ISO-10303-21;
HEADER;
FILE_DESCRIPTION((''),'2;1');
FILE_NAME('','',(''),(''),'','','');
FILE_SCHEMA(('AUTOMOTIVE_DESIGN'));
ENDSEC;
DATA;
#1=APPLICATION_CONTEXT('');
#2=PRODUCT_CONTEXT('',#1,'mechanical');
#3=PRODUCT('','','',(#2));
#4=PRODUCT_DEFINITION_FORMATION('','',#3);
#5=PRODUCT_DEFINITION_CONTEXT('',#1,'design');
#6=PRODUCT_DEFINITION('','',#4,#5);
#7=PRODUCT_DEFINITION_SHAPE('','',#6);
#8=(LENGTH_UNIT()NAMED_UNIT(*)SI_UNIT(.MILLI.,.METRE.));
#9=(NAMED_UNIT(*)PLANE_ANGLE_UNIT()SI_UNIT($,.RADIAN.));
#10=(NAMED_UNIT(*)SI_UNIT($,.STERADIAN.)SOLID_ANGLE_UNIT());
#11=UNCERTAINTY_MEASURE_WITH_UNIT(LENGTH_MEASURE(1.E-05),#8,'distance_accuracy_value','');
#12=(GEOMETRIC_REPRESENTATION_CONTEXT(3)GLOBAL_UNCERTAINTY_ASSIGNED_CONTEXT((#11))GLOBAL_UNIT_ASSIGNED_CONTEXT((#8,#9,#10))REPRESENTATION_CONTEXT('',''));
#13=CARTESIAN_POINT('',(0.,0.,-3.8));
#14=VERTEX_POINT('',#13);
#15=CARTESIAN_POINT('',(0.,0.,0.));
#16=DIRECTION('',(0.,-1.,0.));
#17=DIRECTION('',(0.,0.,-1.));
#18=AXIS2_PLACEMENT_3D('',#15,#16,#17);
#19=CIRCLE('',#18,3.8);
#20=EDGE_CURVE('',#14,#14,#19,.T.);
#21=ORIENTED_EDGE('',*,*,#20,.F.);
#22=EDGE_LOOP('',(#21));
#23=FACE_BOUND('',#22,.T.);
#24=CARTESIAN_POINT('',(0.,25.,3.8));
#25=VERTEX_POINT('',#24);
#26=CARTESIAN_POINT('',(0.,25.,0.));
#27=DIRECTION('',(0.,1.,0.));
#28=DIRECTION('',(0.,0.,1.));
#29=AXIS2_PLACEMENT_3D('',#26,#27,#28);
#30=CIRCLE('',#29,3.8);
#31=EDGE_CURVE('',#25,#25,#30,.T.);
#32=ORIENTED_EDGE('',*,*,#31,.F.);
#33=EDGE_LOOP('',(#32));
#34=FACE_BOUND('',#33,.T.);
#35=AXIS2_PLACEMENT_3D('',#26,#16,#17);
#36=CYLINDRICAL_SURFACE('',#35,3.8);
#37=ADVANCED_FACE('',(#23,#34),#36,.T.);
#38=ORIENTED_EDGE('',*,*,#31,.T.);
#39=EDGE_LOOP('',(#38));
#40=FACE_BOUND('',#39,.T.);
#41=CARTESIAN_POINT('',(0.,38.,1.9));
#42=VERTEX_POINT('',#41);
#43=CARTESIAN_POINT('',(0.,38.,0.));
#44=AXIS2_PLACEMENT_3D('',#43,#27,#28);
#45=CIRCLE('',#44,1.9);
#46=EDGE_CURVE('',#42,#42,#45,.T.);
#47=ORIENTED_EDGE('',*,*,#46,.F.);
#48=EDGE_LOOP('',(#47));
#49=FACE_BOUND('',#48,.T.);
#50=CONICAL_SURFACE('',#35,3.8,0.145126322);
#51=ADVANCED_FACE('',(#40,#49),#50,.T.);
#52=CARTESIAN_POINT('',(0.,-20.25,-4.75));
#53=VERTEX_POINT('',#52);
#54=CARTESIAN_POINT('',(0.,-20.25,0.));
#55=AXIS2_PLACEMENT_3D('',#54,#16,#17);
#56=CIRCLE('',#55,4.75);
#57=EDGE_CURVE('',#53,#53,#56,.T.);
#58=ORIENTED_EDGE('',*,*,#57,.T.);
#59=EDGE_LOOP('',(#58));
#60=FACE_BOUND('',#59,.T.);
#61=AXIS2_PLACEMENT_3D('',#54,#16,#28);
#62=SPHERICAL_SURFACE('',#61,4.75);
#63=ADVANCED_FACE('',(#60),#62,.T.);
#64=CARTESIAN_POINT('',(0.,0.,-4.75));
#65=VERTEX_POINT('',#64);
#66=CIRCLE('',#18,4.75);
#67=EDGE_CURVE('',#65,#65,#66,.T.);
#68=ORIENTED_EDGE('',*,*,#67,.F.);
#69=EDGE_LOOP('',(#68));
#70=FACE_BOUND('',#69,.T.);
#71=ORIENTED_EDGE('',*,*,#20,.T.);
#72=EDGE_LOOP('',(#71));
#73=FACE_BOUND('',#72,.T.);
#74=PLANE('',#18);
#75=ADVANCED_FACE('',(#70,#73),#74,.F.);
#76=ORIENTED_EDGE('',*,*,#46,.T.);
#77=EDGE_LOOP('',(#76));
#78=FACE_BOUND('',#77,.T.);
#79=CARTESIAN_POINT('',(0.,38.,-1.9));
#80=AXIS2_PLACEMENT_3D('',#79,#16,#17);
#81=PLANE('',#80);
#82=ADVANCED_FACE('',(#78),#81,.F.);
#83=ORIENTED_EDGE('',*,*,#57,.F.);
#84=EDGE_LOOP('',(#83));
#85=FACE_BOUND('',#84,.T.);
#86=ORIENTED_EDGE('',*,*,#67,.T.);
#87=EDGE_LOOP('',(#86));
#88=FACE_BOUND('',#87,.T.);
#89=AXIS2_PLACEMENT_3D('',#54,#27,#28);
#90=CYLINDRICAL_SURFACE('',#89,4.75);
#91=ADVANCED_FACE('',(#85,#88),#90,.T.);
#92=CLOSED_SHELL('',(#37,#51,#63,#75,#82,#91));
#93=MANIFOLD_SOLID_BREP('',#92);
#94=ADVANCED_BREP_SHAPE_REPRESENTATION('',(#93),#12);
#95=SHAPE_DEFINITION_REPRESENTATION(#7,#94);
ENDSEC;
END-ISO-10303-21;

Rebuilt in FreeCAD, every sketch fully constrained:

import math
import FreeCAD as App
import Part
import Sketcher
from FreeCAD import Vector
Q = App.Units.Quantity


def add_polygon(sketch, points):
    """Adds a closed chain of lines whose ends are joined by coincident constraints."""
    first, n = sketch.GeometryCount, len(points)
    for a, b in zip(points, points[1:] + points[:1]):
        sketch.addGeometry(Part.LineSegment(App.Vector(*a, 0), App.Vector(*b, 0)), False)
    for i in range(n):
        sketch.addConstraint(Sketcher.Constraint("Coincident", first + i, 2, first + (i + 1) % n, 1))

doc = App.newDocument("Part")
body = doc.addObject("PartDesign::Body", "Body")

# Sketch on XZ plane
sketch1 = body.newObject("Sketcher::SketchObject", "Sketch")
sketch1.AttachmentSupport = (doc.getObject("XZ_Plane"), [""])
sketch1.MapMode = "FlatFace"
sketch1.addGeometry(Part.Circle(Vector(0, 0, 0), Vector(0, 0, 1), 3.8), False)
sketch1.addConstraint(Sketcher.Constraint("Coincident", 0, 3, -1, 1))
sketch1.addConstraint(Sketcher.Constraint("Diameter", 0, Q("7.6 mm")))
pad1 = body.newObject("PartDesign::Pad", "Pad")
pad1.Profile = sketch1
pad1.Length = 25
pad1.Reversed = True

# Sketch on XZ plane
sketch2 = body.newObject("Sketcher::SketchObject", "Sketch001")
sketch2.AttachmentSupport = (doc.getObject("XZ_Plane"), [""])
sketch2.MapMode = "FlatFace"
sketch2.addGeometry(Part.Circle(Vector(0, 0, 0), Vector(0, 0, 1), 4.8), False)
sketch2.addConstraint(Sketcher.Constraint("Coincident", 0, 3, -1, 1))
sketch2.addConstraint(Sketcher.Constraint("Diameter", 0, Q("9.5 mm")))
pad2 = body.newObject("PartDesign::Pad", "Pad001")
pad2.Profile = sketch2
pad2.Length = 20.25

# Sketch on YZ plane
sketch3 = body.newObject("Sketcher::SketchObject", "Sketch002")
sketch3.AttachmentSupport = (doc.getObject("YZ_Plane"), [""])
sketch3.MapMode = "FlatFace"
sketch3.addGeometry(Part.LineSegment(Vector(-25, 0, 0), Vector(-20.2, 0, 0)), False)
sketch3.addGeometry(Part.LineSegment(Vector(-20.2, 0, 0), Vector(-20.2, 4.8, 0)), False)
sketch3.addGeometry(Part.ArcOfCircle(Part.Circle(Vector(-20.3, 0, 0), Vector(0, 0, 1), 4.7), math.radians(90), math.radians(180)), False)
sketch3.addConstraint(Sketcher.Constraint("Coincident", 0, 2, 1, 1))
sketch3.addConstraint(Sketcher.Constraint("Coincident", 1, 2, 2, 1))
sketch3.addConstraint(Sketcher.Constraint("Coincident", 2, 2, 0, 1))
sketch3.addConstraint(Sketcher.Constraint("Horizontal", 0))
sketch3.addConstraint(Sketcher.Constraint("Vertical", 1))
sketch3.addConstraint(Sketcher.Constraint("Coincident", 0, 2, 2, 3))
sketch3.addConstraint(Sketcher.Constraint("PointOnObject", 2, 3, -1))
sketch3.addConstraint(Sketcher.Constraint("Radius", 2, Q("4.75 mm")))
sketch3.addConstraint(Sketcher.Constraint("DistanceX", 2, 2, -1, 1, Q("25 mm")))
revolution = body.newObject("PartDesign::Revolution", "Revolution")
revolution.Profile = sketch3
revolution.ReferenceAxis = (sketch3, ["H_Axis"])
revolution.Angle = 360

# Sketch on YZ plane
sketch4 = body.newObject("Sketcher::SketchObject", "Sketch003")
sketch4.AttachmentSupport = (doc.getObject("YZ_Plane"), [""])
sketch4.MapMode = "FlatFace"
add_polygon(sketch4, [(25, 0), (25, -3.8), (38, -1.9), (38, 0)])  # lines 0-3
sketch4.addConstraint(Sketcher.Constraint("Vertical", 0))
sketch4.addConstraint(Sketcher.Constraint("Vertical", 2))
sketch4.addConstraint(Sketcher.Constraint("Horizontal", 3))
sketch4.addConstraint(Sketcher.Constraint("PointOnObject", 2, 2, -1))
sketch4.addConstraint(Sketcher.Constraint("DistanceX", 3, 2, 3, 1, Q("13 mm")))
sketch4.addConstraint(Sketcher.Constraint("DistanceY", 0, 2, 0, 1, Q("3.8 mm")))
sketch4.addConstraint(Sketcher.Constraint("DistanceY", 2, 1, 2, 2, Q("1.9 mm")))
sketch4.addConstraint(Sketcher.Constraint("DistanceX", -1, 1, 0, 2, Q("25 mm")))
revolution2 = body.newObject("PartDesign::Revolution", "Revolution001")
revolution2.Profile = sketch4
revolution2.ReferenceAxis = (sketch4, ["H_Axis"])
revolution2.Angle = 360

doc.recompute()
